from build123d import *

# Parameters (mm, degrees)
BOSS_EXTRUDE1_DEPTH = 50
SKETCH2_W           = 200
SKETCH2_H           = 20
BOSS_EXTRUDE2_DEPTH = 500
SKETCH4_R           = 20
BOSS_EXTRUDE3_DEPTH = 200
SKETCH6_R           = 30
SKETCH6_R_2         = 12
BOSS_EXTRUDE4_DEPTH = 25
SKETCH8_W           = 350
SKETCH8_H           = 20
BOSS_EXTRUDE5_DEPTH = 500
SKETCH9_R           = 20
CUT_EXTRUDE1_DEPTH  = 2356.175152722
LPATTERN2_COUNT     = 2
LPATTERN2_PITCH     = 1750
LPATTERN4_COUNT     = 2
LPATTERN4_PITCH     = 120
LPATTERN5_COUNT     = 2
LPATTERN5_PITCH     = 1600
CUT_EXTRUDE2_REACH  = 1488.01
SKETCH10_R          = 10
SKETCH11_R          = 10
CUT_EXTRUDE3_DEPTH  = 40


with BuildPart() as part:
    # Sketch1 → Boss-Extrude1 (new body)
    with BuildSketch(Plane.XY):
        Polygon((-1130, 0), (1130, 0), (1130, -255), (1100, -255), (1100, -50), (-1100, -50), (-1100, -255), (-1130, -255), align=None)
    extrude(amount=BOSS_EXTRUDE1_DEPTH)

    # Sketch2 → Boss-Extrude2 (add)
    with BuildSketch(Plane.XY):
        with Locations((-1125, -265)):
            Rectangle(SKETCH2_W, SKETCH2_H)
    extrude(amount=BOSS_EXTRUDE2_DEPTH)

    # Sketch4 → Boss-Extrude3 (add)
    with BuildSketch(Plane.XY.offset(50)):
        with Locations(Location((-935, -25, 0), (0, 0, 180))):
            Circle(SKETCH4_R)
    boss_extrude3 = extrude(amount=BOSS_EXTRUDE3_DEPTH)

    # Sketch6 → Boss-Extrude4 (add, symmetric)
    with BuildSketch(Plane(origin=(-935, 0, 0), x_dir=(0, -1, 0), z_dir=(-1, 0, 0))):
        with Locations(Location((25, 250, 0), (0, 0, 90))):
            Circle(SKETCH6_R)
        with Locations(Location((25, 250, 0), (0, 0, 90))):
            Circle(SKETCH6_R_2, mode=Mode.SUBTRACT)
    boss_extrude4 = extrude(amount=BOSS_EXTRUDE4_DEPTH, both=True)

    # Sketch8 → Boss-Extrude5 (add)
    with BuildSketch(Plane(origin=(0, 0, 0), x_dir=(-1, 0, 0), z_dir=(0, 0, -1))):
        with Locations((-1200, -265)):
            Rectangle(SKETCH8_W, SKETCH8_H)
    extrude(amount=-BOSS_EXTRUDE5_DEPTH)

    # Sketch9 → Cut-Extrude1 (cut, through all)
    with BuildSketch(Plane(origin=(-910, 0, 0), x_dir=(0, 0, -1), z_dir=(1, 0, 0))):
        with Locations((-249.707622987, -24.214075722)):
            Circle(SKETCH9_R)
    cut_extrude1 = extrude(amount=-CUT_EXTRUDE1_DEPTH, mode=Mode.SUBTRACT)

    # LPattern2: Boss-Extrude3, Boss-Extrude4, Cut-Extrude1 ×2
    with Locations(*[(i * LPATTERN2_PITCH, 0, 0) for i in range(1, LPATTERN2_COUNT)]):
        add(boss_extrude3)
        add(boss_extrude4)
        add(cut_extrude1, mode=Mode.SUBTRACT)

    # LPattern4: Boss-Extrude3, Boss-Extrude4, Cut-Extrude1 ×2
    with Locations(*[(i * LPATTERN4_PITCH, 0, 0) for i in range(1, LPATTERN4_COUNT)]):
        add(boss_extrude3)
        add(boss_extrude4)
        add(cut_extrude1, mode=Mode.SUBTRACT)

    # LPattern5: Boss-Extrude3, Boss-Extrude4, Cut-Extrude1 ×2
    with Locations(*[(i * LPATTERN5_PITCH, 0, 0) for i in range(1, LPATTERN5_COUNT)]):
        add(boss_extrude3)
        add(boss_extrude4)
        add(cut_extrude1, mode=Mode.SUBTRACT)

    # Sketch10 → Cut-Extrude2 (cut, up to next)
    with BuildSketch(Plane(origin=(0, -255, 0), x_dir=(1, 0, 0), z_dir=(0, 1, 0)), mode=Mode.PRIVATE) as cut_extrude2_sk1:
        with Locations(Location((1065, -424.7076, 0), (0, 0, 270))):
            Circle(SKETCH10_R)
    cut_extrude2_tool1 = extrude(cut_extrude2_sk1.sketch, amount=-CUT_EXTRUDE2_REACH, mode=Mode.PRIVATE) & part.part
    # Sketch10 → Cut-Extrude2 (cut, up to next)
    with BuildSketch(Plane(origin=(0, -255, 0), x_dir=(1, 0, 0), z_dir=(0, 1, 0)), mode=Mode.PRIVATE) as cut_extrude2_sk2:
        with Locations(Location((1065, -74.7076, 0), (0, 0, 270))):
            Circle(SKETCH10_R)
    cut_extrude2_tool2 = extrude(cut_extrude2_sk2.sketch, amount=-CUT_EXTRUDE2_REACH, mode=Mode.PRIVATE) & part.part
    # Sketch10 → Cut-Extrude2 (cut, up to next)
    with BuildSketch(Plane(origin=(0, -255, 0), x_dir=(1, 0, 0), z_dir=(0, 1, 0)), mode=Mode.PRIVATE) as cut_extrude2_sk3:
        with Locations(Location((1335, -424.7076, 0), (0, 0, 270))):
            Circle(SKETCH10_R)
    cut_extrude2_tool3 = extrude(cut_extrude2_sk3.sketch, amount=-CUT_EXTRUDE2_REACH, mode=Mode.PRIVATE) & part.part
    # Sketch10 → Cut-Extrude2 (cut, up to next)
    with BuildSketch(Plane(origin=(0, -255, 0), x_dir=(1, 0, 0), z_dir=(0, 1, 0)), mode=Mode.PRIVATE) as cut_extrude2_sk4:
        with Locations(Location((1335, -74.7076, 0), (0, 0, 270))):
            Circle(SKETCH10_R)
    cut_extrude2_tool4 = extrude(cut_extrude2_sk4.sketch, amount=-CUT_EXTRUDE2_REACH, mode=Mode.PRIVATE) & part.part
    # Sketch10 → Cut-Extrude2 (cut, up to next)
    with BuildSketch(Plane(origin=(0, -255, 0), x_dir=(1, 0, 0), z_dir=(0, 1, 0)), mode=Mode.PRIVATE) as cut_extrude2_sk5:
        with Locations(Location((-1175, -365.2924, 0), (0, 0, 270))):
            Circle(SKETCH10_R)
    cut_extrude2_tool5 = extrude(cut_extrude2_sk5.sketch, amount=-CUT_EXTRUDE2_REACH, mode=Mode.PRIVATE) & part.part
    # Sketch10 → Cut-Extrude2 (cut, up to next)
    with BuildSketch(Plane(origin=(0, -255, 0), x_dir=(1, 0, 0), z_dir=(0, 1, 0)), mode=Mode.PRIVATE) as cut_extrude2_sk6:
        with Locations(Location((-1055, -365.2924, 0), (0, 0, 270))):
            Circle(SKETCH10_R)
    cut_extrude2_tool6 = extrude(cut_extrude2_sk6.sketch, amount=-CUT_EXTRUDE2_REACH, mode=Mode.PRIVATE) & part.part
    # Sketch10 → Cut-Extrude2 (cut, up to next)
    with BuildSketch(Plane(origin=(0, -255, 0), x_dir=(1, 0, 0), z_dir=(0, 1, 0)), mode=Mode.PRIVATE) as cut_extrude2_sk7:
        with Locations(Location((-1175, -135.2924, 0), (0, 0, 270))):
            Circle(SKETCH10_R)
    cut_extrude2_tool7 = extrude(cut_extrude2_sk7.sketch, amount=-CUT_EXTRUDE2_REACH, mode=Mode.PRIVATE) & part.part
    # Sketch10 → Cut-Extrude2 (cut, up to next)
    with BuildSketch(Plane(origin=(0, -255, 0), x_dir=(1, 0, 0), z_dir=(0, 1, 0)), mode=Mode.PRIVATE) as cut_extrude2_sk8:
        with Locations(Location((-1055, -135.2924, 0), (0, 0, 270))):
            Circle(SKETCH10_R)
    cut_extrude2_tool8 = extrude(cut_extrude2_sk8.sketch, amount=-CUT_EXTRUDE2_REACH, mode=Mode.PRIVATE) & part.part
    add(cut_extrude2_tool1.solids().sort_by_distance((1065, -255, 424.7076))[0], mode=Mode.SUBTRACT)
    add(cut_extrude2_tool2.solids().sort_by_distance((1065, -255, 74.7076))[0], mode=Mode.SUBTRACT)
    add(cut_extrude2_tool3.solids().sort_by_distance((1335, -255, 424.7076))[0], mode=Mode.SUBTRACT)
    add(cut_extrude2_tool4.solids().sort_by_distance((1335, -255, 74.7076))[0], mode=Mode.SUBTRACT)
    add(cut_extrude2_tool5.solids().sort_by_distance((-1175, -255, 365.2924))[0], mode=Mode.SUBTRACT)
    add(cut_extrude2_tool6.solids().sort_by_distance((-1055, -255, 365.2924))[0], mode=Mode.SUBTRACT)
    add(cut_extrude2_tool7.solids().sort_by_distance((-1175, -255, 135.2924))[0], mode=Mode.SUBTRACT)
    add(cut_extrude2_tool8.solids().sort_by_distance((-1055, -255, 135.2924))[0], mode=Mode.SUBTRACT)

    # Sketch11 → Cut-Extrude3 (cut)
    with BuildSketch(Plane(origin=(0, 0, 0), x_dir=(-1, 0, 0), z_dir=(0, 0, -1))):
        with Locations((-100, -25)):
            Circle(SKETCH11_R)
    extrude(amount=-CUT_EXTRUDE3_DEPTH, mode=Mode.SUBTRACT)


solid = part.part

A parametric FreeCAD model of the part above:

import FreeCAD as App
import Part
import Sketcher

V = App.Vector
Q = App.Units.Quantity

doc = App.newDocument("Part")
params = doc.addObject("Spreadsheet::Sheet", "Params")
for row, (alias, value) in enumerate([
    ("sketch1_width", "2260 mm"),
    ("sketch1_width2", "30 mm"),
    ("sketch1_height", "255 mm"),
    ("sketch1_height2", "205 mm"),
    ("pad1_length", "50 mm"),
    ("sketch2_width", "200 mm"),
    ("sketch2_height", "20 mm"),
    ("pad2_length", "500 mm"),
    ("sketch3_diameter", "40 mm"),
    ("pad3_length", "200 mm"),
    ("sketch4_diameter", "60 mm"),
    ("sketch4_diameter2", "24 mm"),
    ("pad4_length", "50 mm"),
    ("sketch5_width", "350 mm"),
    ("sketch5_height", "20 mm"),
    ("pad5_length", "500 mm"),
    ("sketch6_diameter", "40 mm"),
    ("linearpattern_pitch", "1750 mm"),
    ("linearpattern2_pitch", "120 mm"),
    ("linearpattern3_pitch", "1600 mm"),
    ("sketch7_diameter", "20 mm"),
    ("sketch8_diameter", "20 mm"),
    ("sketch9_diameter", "20 mm"),
    ("sketch10_diameter", "20 mm"),
    ("sketch11_diameter", "20 mm"),
    ("sketch12_diameter", "20 mm"),
    ("sketch13_diameter", "20 mm"),
    ("sketch14_diameter", "20 mm"),
    ("sketch15_diameter", "20 mm"),
    ("pocket10_length", "40 mm"),
], start=1):
    params.set(f"A{row}", alias)
    params.set(f"B{row}", "=" + value)
    params.setAlias(f"B{row}", alias)

body = doc.addObject("PartDesign::Body", "Body")

sketch1 = body.newObject("Sketcher::SketchObject", "Sketch")
sketch1.AttachmentSupport = (doc.getObject("XY_Plane"), [""])
sketch1.MapMode = "FlatFace"
sketch1.addGeometry(Part.LineSegment(V(1130, 0, 0), V(-1130, 0, 0)), False)
sketch1.addGeometry(Part.LineSegment(V(-1130, 0, 0), V(-1130, -255, 0)), False)
sketch1.addGeometry(Part.LineSegment(V(-1130, -255, 0), V(-1100, -255, 0)), False)
sketch1.addGeometry(Part.LineSegment(V(-1100, -255, 0), V(-1100, -50, 0)), False)
sketch1.addGeometry(Part.LineSegment(V(-1100, -50, 0), V(1100, -50, 0)), False)
sketch1.addGeometry(Part.LineSegment(V(1100, -50, 0), V(1100, -255, 0)), False)
sketch1.addGeometry(Part.LineSegment(V(1100, -255, 0), V(1130, -255, 0)), False)
sketch1.addGeometry(Part.LineSegment(V(1130, -255, 0), V(1130, 0, 0)), False)
sketch1.addConstraint(Sketcher.Constraint("Coincident", 0, 2, 1, 1))
sketch1.addConstraint(Sketcher.Constraint("Coincident", 1, 2, 2, 1))
sketch1.addConstraint(Sketcher.Constraint("Coincident", 2, 2, 3, 1))
sketch1.addConstraint(Sketcher.Constraint("Coincident", 3, 2, 4, 1))
sketch1.addConstraint(Sketcher.Constraint("Coincident", 4, 2, 5, 1))
sketch1.addConstraint(Sketcher.Constraint("Coincident", 5, 2, 6, 1))
sketch1.addConstraint(Sketcher.Constraint("Coincident", 6, 2, 7, 1))
sketch1.addConstraint(Sketcher.Constraint("Coincident", 7, 2, 0, 1))
sketch1.addConstraint(Sketcher.Constraint("Horizontal", 0))
sketch1.addConstraint(Sketcher.Constraint("Vertical", 1))
sketch1.addConstraint(Sketcher.Constraint("Horizontal", 2))
sketch1.addConstraint(Sketcher.Constraint("Vertical", 3))
sketch1.addConstraint(Sketcher.Constraint("Horizontal", 4))
sketch1.addConstraint(Sketcher.Constraint("Vertical", 5))
sketch1.addConstraint(Sketcher.Constraint("Horizontal", 6))
sketch1.addConstraint(Sketcher.Constraint("Vertical", 7))
sketch1.addConstraint(Sketcher.Constraint("Symmetric", 0, 2, 7, 2, -1, 1))
sketch1.addConstraint(Sketcher.Constraint("Symmetric", 2, 2, 5, 2, -2))
sketch1.addConstraint(Sketcher.Constraint("DistanceX", 0, 2, 0, 1, Q("2260 mm")))
sketch1.addConstraint(Sketcher.Constraint("DistanceX", 2, 1, 2, 2, Q("30 mm")))
sketch1.addConstraint(Sketcher.Constraint("DistanceY", 1, 2, 1, 1, Q("255 mm")))
sketch1.addConstraint(Sketcher.Constraint("DistanceY", 3, 1, 3, 2, Q("205 mm")))
sketch1.setExpression("Constraints[18]", "Params.sketch1_width")
sketch1.setExpression("Constraints[19]", "Params.sketch1_width2")
sketch1.setExpression("Constraints[20]", "Params.sketch1_height")
sketch1.setExpression("Constraints[21]", "Params.sketch1_height2")
pad1 = body.newObject("PartDesign::Pad", "Pad")
pad1.Profile = sketch1
pad1.setExpression("Length", "Params.pad1_length")

sketch2 = body.newObject("Sketcher::SketchObject", "Sketch001")
sketch2.AttachmentSupport = (doc.getObject("XY_Plane"), [""])
sketch2.MapMode = "FlatFace"
sketch2.addGeometry(Part.LineSegment(V(-1225, -255, 0), V(-1225, -275, 0)), False)
sketch2.addGeometry(Part.LineSegment(V(-1225, -275, 0), V(-1025, -275, 0)), False)
sketch2.addGeometry(Part.LineSegment(V(-1025, -275, 0), V(-1025, -255, 0)), False)
sketch2.addGeometry(Part.LineSegment(V(-1025, -255, 0), V(-1225, -255, 0)), False)
sketch2.addConstraint(Sketcher.Constraint("Coincident", 0, 2, 1, 1))
sketch2.addConstraint(Sketcher.Constraint("Coincident", 1, 2, 2, 1))
sketch2.addConstraint(Sketcher.Constraint("Coincident", 2, 2, 3, 1))
sketch2.addConstraint(Sketcher.Constraint("Coincident", 3, 2, 0, 1))
sketch2.addConstraint(Sketcher.Constraint("Vertical", 0))
sketch2.addConstraint(Sketcher.Constraint("Horizontal", 1))
sketch2.addConstraint(Sketcher.Constraint("Vertical", 2))
sketch2.addConstraint(Sketcher.Constraint("Horizontal", 3))
sketch2.addConstraint(Sketcher.Constraint("DistanceX", 1, 1, 1, 2, Q("200 mm")))
sketch2.addConstraint(Sketcher.Constraint("DistanceY", 0, 2, 0, 1, Q("20 mm")))
sketch2.addConstraint(Sketcher.Constraint("DistanceX", 0, 2, -1, 1, Q("1225 mm")))
sketch2.addConstraint(Sketcher.Constraint("DistanceY", 0, 2, -1, 1, Q("275 mm")))
sketch2.setExpression("Constraints[8]", "Params.sketch2_width")
sketch2.setExpression("Constraints[9]", "Params.sketch2_height")
pad2 = body.newObject("PartDesign::Pad", "Pad001")
pad2.Profile = sketch2
pad2.setExpression("Length", "Params.pad2_length")

sketch3 = body.newObject("Sketcher::SketchObject", "Sketch002")
sketch3.AttachmentSupport = (doc.getObject("XY_Plane"), [""])
sketch3.MapMode = "FlatFace"
sketch3.AttachmentOffset = App.Placement(V(0, 0, 50), App.Rotation())
sketch3.addGeometry(Part.Circle(V(-935, -25, 0), V(0, 0, 1), 20), False)
sketch3.addConstraint(Sketcher.Constraint("Diameter", 0, Q("40 mm")))
sketch3.addConstraint(Sketcher.Constraint("DistanceX", 0, 3, -1, 1, Q("935 mm")))
sketch3.addConstraint(Sketcher.Constraint("DistanceY", 0, 3, -1, 1, Q("25 mm")))
sketch3.setExpression("Constraints[0]", "Params.sketch3_diameter")
pad3 = body.newObject("PartDesign::Pad", "Pad002")
pad3.Profile = sketch3
pad3.setExpression("Length", "Params.pad3_length")

sketch4 = body.newObject("Sketcher::SketchObject", "Sketch003")
sketch4.AttachmentSupport = (doc.getObject("YZ_Plane"), [""])
sketch4.MapMode = "FlatFace"
sketch4.AttachmentOffset = App.Placement(V(0, 0, -935), App.Rotation())
sketch4.addGeometry(Part.Circle(V(-25, 250, 0), V(0, 0, 1), 30), False)
sketch4.addGeometry(Part.Circle(V(-25, 250, 0), V(0, 0, 1), 12), False)
sketch4.addConstraint(Sketcher.Constraint("Coincident", 1, 3, 0, 3))
sketch4.addConstraint(Sketcher.Constraint("Diameter", 0, Q("60 mm")))
sketch4.addConstraint(Sketcher.Constraint("Diameter", 1, Q("24 mm")))
sketch4.addConstraint(Sketcher.Constraint("DistanceX", 0, 3, -1, 1, Q("25 mm")))
sketch4.addConstraint(Sketcher.Constraint("DistanceY", -1, 1, 0, 3, Q("250 mm")))
sketch4.setExpression("Constraints[1]", "Params.sketch4_diameter")
sketch4.setExpression("Constraints[2]", "Params.sketch4_diameter2")
pad4 = body.newObject("PartDesign::Pad", "Pad003")
pad4.Profile = sketch4
pad4.setExpression("Length", "Params.pad4_length")
pad4.Midplane = True

sketch5 = body.newObject("Sketcher::SketchObject", "Sketch004")
sketch5.AttachmentSupport = (doc.getObject("XY_Plane"), [""])
sketch5.MapMode = "FlatFace"
sketch5.addGeometry(Part.LineSegment(V(1375, -255, 0), V(1375, -275, 0)), False)
sketch5.addGeometry(Part.LineSegment(V(1375, -275, 0), V(1025, -275, 0)), False)
sketch5.addGeometry(Part.LineSegment(V(1025, -275, 0), V(1025, -255, 0)), False)
sketch5.addGeometry(Part.LineSegment(V(1025, -255, 0), V(1375, -255, 0)), False)
sketch5.addConstraint(Sketcher.Constraint("Coincident", 0, 2, 1, 1))
sketch5.addConstraint(Sketcher.Constraint("Coincident", 1, 2, 2, 1))
sketch5.addConstraint(Sketcher.Constraint("Coincident", 2, 2, 3, 1))
sketch5.addConstraint(Sketcher.Constraint("Coincident", 3, 2, 0, 1))
sketch5.addConstraint(Sketcher.Constraint("Vertical", 0))
sketch5.addConstraint(Sketcher.Constraint("Horizontal", 1))
sketch5.addConstraint(Sketcher.Constraint("Vertical", 2))
sketch5.addConstraint(Sketcher.Constraint("Horizontal", 3))
sketch5.addConstraint(Sketcher.Constraint("DistanceX", 1, 2, 1, 1, Q("350 mm")))
sketch5.addConstraint(Sketcher.Constraint("DistanceY", 0, 2, 0, 1, Q("20 mm")))
sketch5.addConstraint(Sketcher.Constraint("DistanceX", -1, 1, 0, 2, Q("1375 mm")))
sketch5.addConstraint(Sketcher.Constraint("DistanceY", 0, 2, -1, 1, Q("275 mm")))
sketch5.setExpression("Constraints[8]", "Params.sketch5_width")
sketch5.setExpression("Constraints[9]", "Params.sketch5_height")
pad5 = body.newObject("PartDesign::Pad", "Pad004")
pad5.Profile = sketch5
pad5.setExpression("Length", "Params.pad5_length")

sketch6 = body.newObject("Sketcher::SketchObject", "Sketch005")
sketch6.AttachmentSupport = (doc.getObject("YZ_Plane"), [""])
sketch6.MapMode = "FlatFace"
sketch6.AttachmentOffset = App.Placement(V(0, 0, -910), App.Rotation())
sketch6.addGeometry(Part.Circle(V(-24, 250, 0), V(0, 0, 1), 20), False)
sketch6.addConstraint(Sketcher.Constraint("Diameter", 0, Q("40 mm")))
sketch6.addConstraint(Sketcher.Constraint("DistanceX", 0, 3, -1, 1, Q("24.214076 mm")))
sketch6.addConstraint(Sketcher.Constraint("DistanceY", -1, 1, 0, 3, Q("249.707623 mm")))
sketch6.setExpression("Constraints[0]", "Params.sketch6_diameter")
pocket1 = body.newObject("PartDesign::Pocket", "Pocket")
pocket1.Profile = sketch6
pocket1.Type = "ThroughAll"
doc.recompute()

linearpattern = body.newObject("PartDesign::LinearPattern", "LinearPattern")
linearpattern.Originals = [pad3, pad4, pocket1]
linearpattern.Direction = (doc.getObject("X_Axis"), [""])
linearpattern.Mode = "offset"
linearpattern.setExpression("Offset", "Params.linearpattern_pitch")
linearpattern.Occurrences = 2
body.Tip = linearpattern
doc.recompute()

linearpattern2 = body.newObject("PartDesign::LinearPattern", "LinearPattern001")
linearpattern2.Originals = [pad3, pad4, pocket1]
linearpattern2.Direction = (doc.getObject("X_Axis"), [""])
linearpattern2.Mode = "offset"
linearpattern2.setExpression("Offset", "Params.linearpattern2_pitch")
linearpattern2.Occurrences = 2
body.Tip = linearpattern2
doc.recompute()

linearpattern3 = body.newObject("PartDesign::LinearPattern", "LinearPattern002")
linearpattern3.Originals = [pad3, pad4, pocket1]
linearpattern3.Direction = (doc.getObject("X_Axis"), [""])
linearpattern3.Mode = "offset"
linearpattern3.setExpression("Offset", "Params.linearpattern3_pitch")
linearpattern3.Occurrences = 2
body.Tip = linearpattern3

sketch7 = body.newObject("Sketcher::SketchObject", "Sketch006")
sketch7.AttachmentSupport = (doc.getObject("XZ_Plane"), [""])
sketch7.MapMode = "FlatFace"
sketch7.AttachmentOffset = App.Placement(V(0, 0, 255), App.Rotation())
sketch7.addGeometry(Part.Circle(V(1065, 425, 0), V(0, 0, 1), 10), False)
sketch7.addConstraint(Sketcher.Constraint("Diameter", 0, Q("20 mm")))
sketch7.addConstraint(Sketcher.Constraint("DistanceX", -1, 1, 0, 3, Q("1065 mm")))
sketch7.addConstraint(Sketcher.Constraint("DistanceY", -1, 1, 0, 3, Q("424.7076 mm")))
sketch7.setExpression("Constraints[0]", "Params.sketch7_diameter")
pocket2 = body.newObject("PartDesign::Pocket", "Pocket001")
pocket2.Profile = sketch7
pocket2.Type = "UpToFirst"
pocket2.Reversed = True

sketch8 = body.newObject("Sketcher::SketchObject", "Sketch007")
sketch8.AttachmentSupport = (doc.getObject("XZ_Plane"), [""])
sketch8.MapMode = "FlatFace"
sketch8.AttachmentOffset = App.Placement(V(0, 0, 255), App.Rotation())
sketch8.addGeometry(Part.Circle(V(1065, 75, 0), V(0, 0, 1), 10), False)
sketch8.addConstraint(Sketcher.Constraint("Diameter", 0, Q("20 mm")))
sketch8.addConstraint(Sketcher.Constraint("DistanceX", -1, 1, 0, 3, Q("1065 mm")))
sketch8.addConstraint(Sketcher.Constraint("DistanceY", -1, 1, 0, 3, Q("74.7076 mm")))
sketch8.setExpression("Constraints[0]", "Params.sketch8_diameter")
pocket3 = body.newObject("PartDesign::Pocket", "Pocket002")
pocket3.Profile = sketch8
pocket3.Type = "UpToFirst"
pocket3.Reversed = True

sketch9 = body.newObject("Sketcher::SketchObject", "Sketch008")
sketch9.AttachmentSupport = (doc.getObject("XZ_Plane"), [""])
sketch9.MapMode = "FlatFace"
sketch9.AttachmentOffset = App.Placement(V(0, 0, 255), App.Rotation())
sketch9.addGeometry(Part.Circle(V(1335, 425, 0), V(0, 0, 1), 10), False)
sketch9.addConstraint(Sketcher.Constraint("Diameter", 0, Q("20 mm")))
sketch9.addConstraint(Sketcher.Constraint("DistanceX", -1, 1, 0, 3, Q("1335 mm")))
sketch9.addConstraint(Sketcher.Constraint("DistanceY", -1, 1, 0, 3, Q("424.7076 mm")))
sketch9.setExpression("Constraints[0]", "Params.sketch9_diameter")
pocket4 = body.newObject("PartDesign::Pocket", "Pocket003")
pocket4.Profile = sketch9
pocket4.Type = "UpToFirst"
pocket4.Reversed = True

sketch10 = body.newObject("Sketcher::SketchObject", "Sketch009")
sketch10.AttachmentSupport = (doc.getObject("XZ_Plane"), [""])
sketch10.MapMode = "FlatFace"
sketch10.AttachmentOffset = App.Placement(V(0, 0, 255), App.Rotation())
sketch10.addGeometry(Part.Circle(V(1335, 75, 0), V(0, 0, 1), 10), False)
sketch10.addConstraint(Sketcher.Constraint("Diameter", 0, Q("20 mm")))
sketch10.addConstraint(Sketcher.Constraint("DistanceX", -1, 1, 0, 3, Q("1335 mm")))
sketch10.addConstraint(Sketcher.Constraint("DistanceY", -1, 1, 0, 3, Q("74.7076 mm")))
sketch10.setExpression("Constraints[0]", "Params.sketch10_diameter")
pocket5 = body.newObject("PartDesign::Pocket", "Pocket004")
pocket5.Profile = sketch10
pocket5.Type = "UpToFirst"
pocket5.Reversed = True

sketch11 = body.newObject("Sketcher::SketchObject", "Sketch010")
sketch11.AttachmentSupport = (doc.getObject("XZ_Plane"), [""])
sketch11.MapMode = "FlatFace"
sketch11.AttachmentOffset = App.Placement(V(0, 0, 255), App.Rotation())
sketch11.addGeometry(Part.Circle(V(-1175, 365, 0), V(0, 0, 1), 10), False)
sketch11.addConstraint(Sketcher.Constraint("Diameter", 0, Q("20 mm")))
sketch11.addConstraint(Sketcher.Constraint("DistanceX", 0, 3, -1, 1, Q("1175 mm")))
sketch11.addConstraint(Sketcher.Constraint("DistanceY", -1, 1, 0, 3, Q("365.2924 mm")))
sketch11.setExpression("Constraints[0]", "Params.sketch11_diameter")
pocket6 = body.newObject("PartDesign::Pocket", "Pocket005")
pocket6.Profile = sketch11
pocket6.Type = "UpToFirst"
pocket6.Reversed = True

sketch12 = body.newObject("Sketcher::SketchObject", "Sketch011")
sketch12.AttachmentSupport = (doc.getObject("XZ_Plane"), [""])
sketch12.MapMode = "FlatFace"
sketch12.AttachmentOffset = App.Placement(V(0, 0, 255), App.Rotation())
sketch12.addGeometry(Part.Circle(V(-1055, 365, 0), V(0, 0, 1), 10), False)
sketch12.addConstraint(Sketcher.Constraint("Diameter", 0, Q("20 mm")))
sketch12.addConstraint(Sketcher.Constraint("DistanceX", 0, 3, -1, 1, Q("1055 mm")))
sketch12.addConstraint(Sketcher.Constraint("DistanceY", -1, 1, 0, 3, Q("365.2924 mm")))
sketch12.setExpression("Constraints[0]", "Params.sketch12_diameter")
pocket7 = body.newObject("PartDesign::Pocket", "Pocket006")
pocket7.Profile = sketch12
pocket7.Type = "UpToFirst"
pocket7.Reversed = True

sketch13 = body.newObject("Sketcher::SketchObject", "Sketch012")
sketch13.AttachmentSupport = (doc.getObject("XZ_Plane"), [""])
sketch13.MapMode = "FlatFace"
sketch13.AttachmentOffset = App.Placement(V(0, 0, 255), App.Rotation())
sketch13.addGeometry(Part.Circle(V(-1175, 135, 0), V(0, 0, 1), 10), False)
sketch13.addConstraint(Sketcher.Constraint("Diameter", 0, Q("20 mm")))
sketch13.addConstraint(Sketcher.Constraint("DistanceX", 0, 3, -1, 1, Q("1175 mm")))
sketch13.addConstraint(Sketcher.Constraint("DistanceY", -1, 1, 0, 3, Q("135.2924 mm")))
sketch13.setExpression("Constraints[0]", "Params.sketch13_diameter")
pocket8 = body.newObject("PartDesign::Pocket", "Pocket007")
pocket8.Profile = sketch13
pocket8.Type = "UpToFirst"
pocket8.Reversed = True

sketch14 = body.newObject("Sketcher::SketchObject", "Sketch013")
sketch14.AttachmentSupport = (doc.getObject("XZ_Plane"), [""])
sketch14.MapMode = "FlatFace"
sketch14.AttachmentOffset = App.Placement(V(0, 0, 255), App.Rotation())
sketch14.addGeometry(Part.Circle(V(-1055, 135, 0), V(0, 0, 1), 10), False)
sketch14.addConstraint(Sketcher.Constraint("Diameter", 0, Q("20 mm")))
sketch14.addConstraint(Sketcher.Constraint("DistanceX", 0, 3, -1, 1, Q("1055 mm")))
sketch14.addConstraint(Sketcher.Constraint("DistanceY", -1, 1, 0, 3, Q("135.2924 mm")))
sketch14.setExpression("Constraints[0]", "Params.sketch14_diameter")
pocket9 = body.newObject("PartDesign::Pocket", "Pocket008")
pocket9.Profile = sketch14
pocket9.Type = "UpToFirst"
pocket9.Reversed = True

sketch15 = body.newObject("Sketcher::SketchObject", "Sketch014")
sketch15.AttachmentSupport = (doc.getObject("XY_Plane"), [""])
sketch15.MapMode = "FlatFace"
sketch15.addGeometry(Part.Circle(V(100, -25, 0), V(0, 0, 1), 10), False)
sketch15.addConstraint(Sketcher.Constraint("Diameter", 0, Q("20 mm")))
sketch15.addConstraint(Sketcher.Constraint("DistanceX", -1, 1, 0, 3, Q("100 mm")))
sketch15.addConstraint(Sketcher.Constraint("DistanceY", 0, 3, -1, 1, Q("25 mm")))
sketch15.setExpression("Constraints[0]", "Params.sketch15_diameter")
pocket10 = body.newObject("PartDesign::Pocket", "Pocket009")
pocket10.Profile = sketch15
pocket10.setExpression("Length", "Params.pocket10_length")
pocket10.Reversed = True

doc.recompute()
